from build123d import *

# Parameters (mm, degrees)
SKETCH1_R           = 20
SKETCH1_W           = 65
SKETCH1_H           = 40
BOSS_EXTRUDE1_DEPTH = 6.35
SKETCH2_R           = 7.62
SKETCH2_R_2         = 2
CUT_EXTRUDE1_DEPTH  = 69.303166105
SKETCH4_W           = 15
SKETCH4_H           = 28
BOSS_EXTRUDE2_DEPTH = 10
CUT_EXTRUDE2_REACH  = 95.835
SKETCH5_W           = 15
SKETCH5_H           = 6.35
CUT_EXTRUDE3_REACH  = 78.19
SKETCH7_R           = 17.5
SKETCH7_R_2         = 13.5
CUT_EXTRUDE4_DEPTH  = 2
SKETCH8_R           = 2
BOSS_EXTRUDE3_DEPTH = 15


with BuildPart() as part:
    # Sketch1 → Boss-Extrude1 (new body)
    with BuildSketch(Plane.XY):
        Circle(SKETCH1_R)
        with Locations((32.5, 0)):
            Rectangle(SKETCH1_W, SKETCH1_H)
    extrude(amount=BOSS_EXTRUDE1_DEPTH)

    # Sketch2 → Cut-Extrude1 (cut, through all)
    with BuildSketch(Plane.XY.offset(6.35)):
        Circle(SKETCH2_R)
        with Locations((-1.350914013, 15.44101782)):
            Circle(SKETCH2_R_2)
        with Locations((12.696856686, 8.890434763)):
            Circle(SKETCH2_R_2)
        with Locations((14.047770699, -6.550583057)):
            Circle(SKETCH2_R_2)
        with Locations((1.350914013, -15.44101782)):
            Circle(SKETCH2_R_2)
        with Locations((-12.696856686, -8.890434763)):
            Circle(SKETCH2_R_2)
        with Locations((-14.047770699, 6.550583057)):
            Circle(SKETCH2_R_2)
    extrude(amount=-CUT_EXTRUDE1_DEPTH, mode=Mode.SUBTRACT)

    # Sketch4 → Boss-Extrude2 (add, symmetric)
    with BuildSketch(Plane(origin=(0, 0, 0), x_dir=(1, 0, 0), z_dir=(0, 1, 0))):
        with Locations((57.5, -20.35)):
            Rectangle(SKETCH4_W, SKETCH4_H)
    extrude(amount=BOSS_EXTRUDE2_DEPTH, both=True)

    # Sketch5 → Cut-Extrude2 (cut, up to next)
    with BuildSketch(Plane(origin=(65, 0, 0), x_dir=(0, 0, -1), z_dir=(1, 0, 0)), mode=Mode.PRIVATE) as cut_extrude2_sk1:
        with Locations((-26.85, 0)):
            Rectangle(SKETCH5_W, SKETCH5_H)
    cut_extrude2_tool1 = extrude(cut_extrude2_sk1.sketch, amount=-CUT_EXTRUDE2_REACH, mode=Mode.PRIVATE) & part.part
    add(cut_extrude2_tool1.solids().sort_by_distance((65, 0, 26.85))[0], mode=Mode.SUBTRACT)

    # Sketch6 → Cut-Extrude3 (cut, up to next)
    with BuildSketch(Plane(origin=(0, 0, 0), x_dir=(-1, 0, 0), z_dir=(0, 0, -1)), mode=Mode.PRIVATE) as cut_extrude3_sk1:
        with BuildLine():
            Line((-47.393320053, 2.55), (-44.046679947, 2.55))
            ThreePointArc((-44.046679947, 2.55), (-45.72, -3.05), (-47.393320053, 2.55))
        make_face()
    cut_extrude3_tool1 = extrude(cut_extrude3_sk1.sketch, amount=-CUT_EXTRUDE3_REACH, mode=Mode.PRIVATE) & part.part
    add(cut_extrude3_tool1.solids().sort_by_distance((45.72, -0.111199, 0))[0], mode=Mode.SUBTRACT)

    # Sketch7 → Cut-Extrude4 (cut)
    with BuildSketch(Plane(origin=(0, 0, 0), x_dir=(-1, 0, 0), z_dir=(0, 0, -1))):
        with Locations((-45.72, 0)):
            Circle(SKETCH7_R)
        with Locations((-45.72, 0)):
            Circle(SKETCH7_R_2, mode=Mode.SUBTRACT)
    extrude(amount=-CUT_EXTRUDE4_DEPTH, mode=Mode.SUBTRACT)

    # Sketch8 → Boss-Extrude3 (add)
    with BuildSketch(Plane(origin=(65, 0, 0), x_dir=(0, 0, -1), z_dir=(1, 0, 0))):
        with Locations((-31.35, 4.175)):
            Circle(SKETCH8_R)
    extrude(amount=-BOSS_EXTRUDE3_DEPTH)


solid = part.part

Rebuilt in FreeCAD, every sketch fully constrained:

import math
import FreeCAD as App
import Part
import Sketcher

V = App.Vector
Q = App.Units.Quantity

doc = App.newDocument("Part")
body = doc.addObject("PartDesign::Body", "Body")

# Sketch on XY plane
sketch1 = doc.addObject("Sketcher::SketchObject", "Sketch")
body.addObject(sketch1)
sketch1.AttachmentSupport = (doc.XY_Plane, [""])
sketch1.MapMode = "FlatFace"
sketch1.addGeometry([
    Part.LineSegment(V(0, -20, 0), V(65, -20, 0)),
    Part.LineSegment(V(65, -20, 0), V(65, 20, 0)),
    Part.LineSegment(V(65, 20, 0), V(0, 20, 0)),
    Part.ArcOfCircle(Part.Circle(V(0, 0, 0), V(0, 0, 1), 20), math.radians(90), math.radians(270)),
], False)
sketch1.addConstraint([
    Sketcher.Constraint("Coincident", 0, 2, 1, 1),
    Sketcher.Constraint("Coincident", 1, 2, 2, 1),
    Sketcher.Constraint("Tangent", 2, 2, 3, 1),
    Sketcher.Constraint("Tangent", 3, 2, 0, 1),
    Sketcher.Constraint("Horizontal", 0),
    Sketcher.Constraint("Vertical", 1),
    Sketcher.Constraint("Horizontal", 2),
    Sketcher.Constraint("Coincident", 3, 3, -1, 1),
    Sketcher.Constraint("Radius", 3, Q("20 mm")),
    Sketcher.Constraint("DistanceX", 0, 1, 0, 2, Q("65 mm")),
])
pad1 = doc.addObject("PartDesign::Pad", "Pad")
body.addObject(pad1)
pad1.Profile = sketch1
pad1.Length = 6.35

# Sketch on XY plane
sketch2 = doc.addObject("Sketcher::SketchObject", "Sketch001")
body.addObject(sketch2)
sketch2.AttachmentSupport = (doc.XY_Plane, [""])
sketch2.MapMode = "FlatFace"
sketch2.AttachmentOffset = App.Placement(V(0, 0, 6.35), App.Rotation())
sketch2.addGeometry([
    Part.Circle(V(0, 0, 0), V(0, 0, 1), 7.6),  # 0
    Part.Circle(V(-1.4, 15.4, 0), V(0, 0, 1), 2),  # 1
    Part.Circle(V(12.7, 8.9, 0), V(0, 0, 1), 2),  # 2
    Part.Circle(V(14, -6.6, 0), V(0, 0, 1), 2),  # 3
    Part.Circle(V(1.4, -15.4, 0), V(0, 0, 1), 2),  # 4
    Part.Circle(V(-12.7, -8.9, 0), V(0, 0, 1), 2),  # 5
    Part.Circle(V(-14, 6.6, 0), V(0, 0, 1), 2),  # 6
], False)
sketch2.addConstraint([
    Sketcher.Constraint("Coincident", 0, 3, -1, 1),
    Sketcher.Constraint("Equal", 1, 2),
    Sketcher.Constraint("Equal", 2, 3),
    Sketcher.Constraint("Equal", 3, 4),
    Sketcher.Constraint("Equal", 4, 5),
    Sketcher.Constraint("Equal", 5, 6),
    Sketcher.Constraint("Symmetric", 1, 3, 4, 3, -1, 1),
    Sketcher.Constraint("Symmetric", 2, 3, 5, 3, -1, 1),
    Sketcher.Constraint("Symmetric", 3, 3, 6, 3, -1, 1),
    Sketcher.Constraint("Diameter", 1, Q("4 mm")),
    Sketcher.Constraint("Diameter", 0, Q("15.24 mm")),
    Sketcher.Constraint("DistanceY", 3, 3, 1, 3, Q("21.991601 mm")),
    Sketcher.Constraint("DistanceX", -1, 1, 3, 3, Q("14.047771 mm")),
    Sketcher.Constraint("DistanceX", 1, 3, 2, 3, Q("14.047771 mm")),
    Sketcher.Constraint("DistanceX", 1, 3, 4, 3, Q("2.701828 mm")),
    Sketcher.Constraint("DistanceY", 5, 3, 3, 3, Q("2.339852 mm")),
    Sketcher.Constraint("DistanceY", 5, 3, 2, 3, Q("17.78087 mm")),
])
pocket1 = doc.addObject("PartDesign::Pocket", "Pocket")
body.addObject(pocket1)
pocket1.Profile = sketch2
pocket1.Type = "ThroughAll"

# Sketch on XZ plane
sketch3 = doc.addObject("Sketcher::SketchObject", "Sketch002")
body.addObject(sketch3)
sketch3.AttachmentSupport = (doc.XZ_Plane, [""])
sketch3.MapMode = "FlatFace"
sketch3.addGeometry([
    Part.LineSegment(V(50, 6, 0), V(50, 34, 0)),
    Part.LineSegment(V(50, 34, 0), V(65, 34, 0)),
    Part.LineSegment(V(65, 34, 0), V(65, 6, 0)),
    Part.LineSegment(V(65, 6, 0), V(50, 6, 0)),
], False)
sketch3.addConstraint([
    Sketcher.Constraint("Coincident", 0, 2, 1, 1),
    Sketcher.Constraint("Coincident", 1, 2, 2, 1),
    Sketcher.Constraint("Coincident", 2, 2, 3, 1),
    Sketcher.Constraint("Coincident", 3, 2, 0, 1),
    Sketcher.Constraint("Vertical", 0),
    Sketcher.Constraint("Horizontal", 1),
    Sketcher.Constraint("Vertical", 2),
    Sketcher.Constraint("Horizontal", 3),
    Sketcher.Constraint("DistanceX", 1, 1, 1, 2, Q("15 mm")),
    Sketcher.Constraint("DistanceY", 0, 1, 0, 2, Q("28 mm")),
    Sketcher.Constraint("DistanceX", -1, 1, 0, 2, Q("50 mm")),
    Sketcher.Constraint("DistanceY", -1, 1, 0, 2, Q("34.35 mm")),
])
pad2 = doc.addObject("PartDesign::Pad", "Pad001")
body.addObject(pad2)
pad2.Profile = sketch3
pad2.Length = 20
pad2.Midplane = True

# Sketch on YZ plane
sketch4 = doc.addObject("Sketcher::SketchObject", "Sketch003")
body.addObject(sketch4)
sketch4.AttachmentSupport = (doc.YZ_Plane, [""])
sketch4.MapMode = "FlatFace"
sketch4.AttachmentOffset = App.Placement(V(0, 0, 65), App.Rotation())
sketch4.addGeometry([
    Part.LineSegment(V(3, 34, 0), V(-3, 34, 0)),
    Part.LineSegment(V(-3, 34, 0), V(-3, 19, 0)),
    Part.LineSegment(V(-3, 19, 0), V(3, 19, 0)),
    Part.LineSegment(V(3, 19, 0), V(3, 34, 0)),
], False)
sketch4.addConstraint([
    Sketcher.Constraint("Coincident", 0, 2, 1, 1),
    Sketcher.Constraint("Coincident", 1, 2, 2, 1),
    Sketcher.Constraint("Coincident", 2, 2, 3, 1),
    Sketcher.Constraint("Coincident", 3, 2, 0, 1),
    Sketcher.Constraint("Horizontal", 0),
    Sketcher.Constraint("Vertical", 1),
    Sketcher.Constraint("Horizontal", 2),
    Sketcher.Constraint("Vertical", 3),
    Sketcher.Constraint("DistanceY", 1, 2, 1, 1, Q("15 mm")),
    Sketcher.Constraint("DistanceX", 0, 2, 0, 1, Q("6.35 mm")),
    Sketcher.Constraint("DistanceY", -1, 1, 0, 2, Q("34.35 mm")),
    Sketcher.Constraint("DistanceX", 0, 2, -1, 1, Q("3.175 mm")),
])
pocket2 = doc.addObject("PartDesign::Pocket", "Pocket001")
body.addObject(pocket2)
pocket2.Profile = sketch4
pocket2.Type = "UpToFirst"

# Sketch on XY plane
sketch5 = doc.addObject("Sketcher::SketchObject", "Sketch004")
body.addObject(sketch5)
sketch5.AttachmentSupport = (doc.XY_Plane, [""])
sketch5.MapMode = "FlatFace"
sketch5.addGeometry([
    Part.LineSegment(V(44, 2.5, 0), V(47.4, 2.5, 0)),
    Part.ArcOfCircle(Part.Circle(V(45.7, 0, 0), V(0, 0, 1), 3), math.radians(123), math.radians(417)),
], False)
sketch5.addConstraint([
    Sketcher.Constraint("Coincident", 0, 1, 1, 1),
    Sketcher.Constraint("Coincident", 1, 2, 0, 2),
    Sketcher.Constraint("Horizontal", 0),
    Sketcher.Constraint("PointOnObject", 1, 3, -1),
    Sketcher.Constraint("Radius", 1, Q("3.05 mm")),
    Sketcher.Constraint("DistanceX", -1, 1, 1, 3, Q("45.72 mm")),
    Sketcher.Constraint("DistanceY", -1, 1, 0, 1, Q("2.55 mm")),
])
pocket3 = doc.addObject("PartDesign::Pocket", "Pocket002")
body.addObject(pocket3)
pocket3.Profile = sketch5
pocket3.Type = "UpToFirst"
pocket3.Reversed = True

# Sketch on XY plane
sketch6 = doc.addObject("Sketcher::SketchObject", "Sketch005")
body.addObject(sketch6)
sketch6.AttachmentSupport = (doc.XY_Plane, [""])
sketch6.MapMode = "FlatFace"
sketch6.addGeometry([
    Part.Circle(V(46, 0, 0), V(0, 0, 1), 18),
    Part.Circle(V(46, 0, 0), V(0, 0, 1), 14),
], False)
sketch6.addConstraint([
    Sketcher.Constraint("Coincident", 1, 3, 0, 3),
    Sketcher.Constraint("PointOnObject", 0, 3, -1),
    Sketcher.Constraint("Diameter", 0, Q("35 mm")),
    Sketcher.Constraint("Diameter", 1, Q("27 mm")),
    Sketcher.Constraint("DistanceX", -1, 1, 0, 3, Q("45.72 mm")),
])
pocket4 = doc.addObject("PartDesign::Pocket", "Pocket003")
body.addObject(pocket4)
pocket4.Profile = sketch6
pocket4.Length = 2
pocket4.Reversed = True

# Sketch on YZ plane
sketch7 = doc.addObject("Sketcher::SketchObject", "Sketch006")
body.addObject(sketch7)
sketch7.AttachmentSupport = (doc.YZ_Plane, [""])
sketch7.MapMode = "FlatFace"
sketch7.AttachmentOffset = App.Placement(V(0, 0, 65), App.Rotation())
sketch7.addGeometry(Part.Circle(V(4.2, 31.4, 0), V(0, 0, 1), 2), False)
sketch7.addConstraint([
    Sketcher.Constraint("Diameter", 0, Q("4 mm")),
    Sketcher.Constraint("DistanceY", -1, 1, 0, 3, Q("31.35 mm")),
    Sketcher.Constraint("DistanceX", -1, 1, 0, 3, Q("4.175 mm")),
])
pad3 = doc.addObject("PartDesign::Pad", "Pad002")
body.addObject(pad3)
pad3.Profile = sketch7
pad3.Length = 15
pad3.Reversed = True

doc.recompute()
